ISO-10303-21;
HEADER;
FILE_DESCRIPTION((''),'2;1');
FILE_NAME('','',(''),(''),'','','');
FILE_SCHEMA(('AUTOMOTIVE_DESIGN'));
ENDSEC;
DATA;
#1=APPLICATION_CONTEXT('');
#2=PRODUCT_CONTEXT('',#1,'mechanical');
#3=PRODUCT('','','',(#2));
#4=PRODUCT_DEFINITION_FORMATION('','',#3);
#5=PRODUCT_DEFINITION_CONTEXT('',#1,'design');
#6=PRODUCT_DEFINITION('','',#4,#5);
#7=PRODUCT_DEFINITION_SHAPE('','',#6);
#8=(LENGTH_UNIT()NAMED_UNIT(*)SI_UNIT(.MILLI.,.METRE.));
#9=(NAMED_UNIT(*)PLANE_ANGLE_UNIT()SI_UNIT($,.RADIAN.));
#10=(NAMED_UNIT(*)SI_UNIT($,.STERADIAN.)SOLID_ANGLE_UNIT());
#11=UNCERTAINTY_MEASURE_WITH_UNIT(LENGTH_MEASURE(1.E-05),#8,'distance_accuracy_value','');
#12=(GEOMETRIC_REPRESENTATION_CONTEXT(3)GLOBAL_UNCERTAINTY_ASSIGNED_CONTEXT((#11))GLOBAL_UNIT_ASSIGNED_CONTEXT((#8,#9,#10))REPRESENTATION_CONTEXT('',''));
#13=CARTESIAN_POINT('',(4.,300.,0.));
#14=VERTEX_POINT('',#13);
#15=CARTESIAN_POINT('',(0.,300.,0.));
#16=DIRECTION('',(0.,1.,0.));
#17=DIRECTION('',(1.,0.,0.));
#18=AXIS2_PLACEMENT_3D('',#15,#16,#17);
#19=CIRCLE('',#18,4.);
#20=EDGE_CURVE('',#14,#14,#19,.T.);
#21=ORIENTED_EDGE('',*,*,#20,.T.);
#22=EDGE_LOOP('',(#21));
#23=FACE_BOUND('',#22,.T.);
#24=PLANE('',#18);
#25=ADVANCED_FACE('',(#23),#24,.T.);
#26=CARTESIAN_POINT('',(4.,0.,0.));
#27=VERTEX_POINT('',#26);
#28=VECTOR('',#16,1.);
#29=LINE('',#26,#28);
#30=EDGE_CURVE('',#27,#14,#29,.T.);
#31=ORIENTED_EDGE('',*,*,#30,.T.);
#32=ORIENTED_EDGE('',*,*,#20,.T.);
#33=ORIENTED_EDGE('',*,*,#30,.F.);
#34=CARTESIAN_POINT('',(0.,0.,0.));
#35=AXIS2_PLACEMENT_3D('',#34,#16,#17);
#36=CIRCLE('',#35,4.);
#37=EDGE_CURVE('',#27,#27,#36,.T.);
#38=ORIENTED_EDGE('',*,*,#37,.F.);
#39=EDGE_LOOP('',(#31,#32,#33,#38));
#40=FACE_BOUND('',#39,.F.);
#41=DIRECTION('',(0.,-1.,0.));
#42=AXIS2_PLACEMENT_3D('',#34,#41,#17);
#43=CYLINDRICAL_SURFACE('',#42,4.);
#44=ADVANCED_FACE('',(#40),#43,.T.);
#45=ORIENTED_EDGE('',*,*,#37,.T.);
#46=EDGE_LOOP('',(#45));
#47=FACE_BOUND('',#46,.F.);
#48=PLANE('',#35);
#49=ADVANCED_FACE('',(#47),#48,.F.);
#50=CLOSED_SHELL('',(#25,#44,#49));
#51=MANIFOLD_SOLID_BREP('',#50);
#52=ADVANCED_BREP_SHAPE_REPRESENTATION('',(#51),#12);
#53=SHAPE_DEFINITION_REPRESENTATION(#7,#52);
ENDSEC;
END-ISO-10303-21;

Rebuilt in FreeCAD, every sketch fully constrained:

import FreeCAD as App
import Part
import Sketcher
from FreeCAD import Vector

doc = App.newDocument("Part")
body = doc.addObject("PartDesign::Body", "Body")

# Sketch on XZ plane
sketch1 = doc.addObject("Sketcher::SketchObject", "Sketch")
body.addObject(sketch1)
sketch1.AttachmentSupport = (doc.XZ_Plane, [""])
sketch1.MapMode = "FlatFace"
sketch1.addGeometry(Part.Circle(Vector(0, 0, 0), Vector(0, 0, 1), 4), False)
sketch1.addConstraint(Sketcher.Constraint("Coincident", 0, 3, -1, 1))
sketch1.addConstraint(Sketcher.Constraint("Diameter", 0, 8.0))
pad1 = doc.addObject("PartDesign::Pad", "Pad")
body.addObject(pad1)
pad1.Profile = sketch1
pad1.Length = 300
pad1.Reversed = True

doc.recompute()
